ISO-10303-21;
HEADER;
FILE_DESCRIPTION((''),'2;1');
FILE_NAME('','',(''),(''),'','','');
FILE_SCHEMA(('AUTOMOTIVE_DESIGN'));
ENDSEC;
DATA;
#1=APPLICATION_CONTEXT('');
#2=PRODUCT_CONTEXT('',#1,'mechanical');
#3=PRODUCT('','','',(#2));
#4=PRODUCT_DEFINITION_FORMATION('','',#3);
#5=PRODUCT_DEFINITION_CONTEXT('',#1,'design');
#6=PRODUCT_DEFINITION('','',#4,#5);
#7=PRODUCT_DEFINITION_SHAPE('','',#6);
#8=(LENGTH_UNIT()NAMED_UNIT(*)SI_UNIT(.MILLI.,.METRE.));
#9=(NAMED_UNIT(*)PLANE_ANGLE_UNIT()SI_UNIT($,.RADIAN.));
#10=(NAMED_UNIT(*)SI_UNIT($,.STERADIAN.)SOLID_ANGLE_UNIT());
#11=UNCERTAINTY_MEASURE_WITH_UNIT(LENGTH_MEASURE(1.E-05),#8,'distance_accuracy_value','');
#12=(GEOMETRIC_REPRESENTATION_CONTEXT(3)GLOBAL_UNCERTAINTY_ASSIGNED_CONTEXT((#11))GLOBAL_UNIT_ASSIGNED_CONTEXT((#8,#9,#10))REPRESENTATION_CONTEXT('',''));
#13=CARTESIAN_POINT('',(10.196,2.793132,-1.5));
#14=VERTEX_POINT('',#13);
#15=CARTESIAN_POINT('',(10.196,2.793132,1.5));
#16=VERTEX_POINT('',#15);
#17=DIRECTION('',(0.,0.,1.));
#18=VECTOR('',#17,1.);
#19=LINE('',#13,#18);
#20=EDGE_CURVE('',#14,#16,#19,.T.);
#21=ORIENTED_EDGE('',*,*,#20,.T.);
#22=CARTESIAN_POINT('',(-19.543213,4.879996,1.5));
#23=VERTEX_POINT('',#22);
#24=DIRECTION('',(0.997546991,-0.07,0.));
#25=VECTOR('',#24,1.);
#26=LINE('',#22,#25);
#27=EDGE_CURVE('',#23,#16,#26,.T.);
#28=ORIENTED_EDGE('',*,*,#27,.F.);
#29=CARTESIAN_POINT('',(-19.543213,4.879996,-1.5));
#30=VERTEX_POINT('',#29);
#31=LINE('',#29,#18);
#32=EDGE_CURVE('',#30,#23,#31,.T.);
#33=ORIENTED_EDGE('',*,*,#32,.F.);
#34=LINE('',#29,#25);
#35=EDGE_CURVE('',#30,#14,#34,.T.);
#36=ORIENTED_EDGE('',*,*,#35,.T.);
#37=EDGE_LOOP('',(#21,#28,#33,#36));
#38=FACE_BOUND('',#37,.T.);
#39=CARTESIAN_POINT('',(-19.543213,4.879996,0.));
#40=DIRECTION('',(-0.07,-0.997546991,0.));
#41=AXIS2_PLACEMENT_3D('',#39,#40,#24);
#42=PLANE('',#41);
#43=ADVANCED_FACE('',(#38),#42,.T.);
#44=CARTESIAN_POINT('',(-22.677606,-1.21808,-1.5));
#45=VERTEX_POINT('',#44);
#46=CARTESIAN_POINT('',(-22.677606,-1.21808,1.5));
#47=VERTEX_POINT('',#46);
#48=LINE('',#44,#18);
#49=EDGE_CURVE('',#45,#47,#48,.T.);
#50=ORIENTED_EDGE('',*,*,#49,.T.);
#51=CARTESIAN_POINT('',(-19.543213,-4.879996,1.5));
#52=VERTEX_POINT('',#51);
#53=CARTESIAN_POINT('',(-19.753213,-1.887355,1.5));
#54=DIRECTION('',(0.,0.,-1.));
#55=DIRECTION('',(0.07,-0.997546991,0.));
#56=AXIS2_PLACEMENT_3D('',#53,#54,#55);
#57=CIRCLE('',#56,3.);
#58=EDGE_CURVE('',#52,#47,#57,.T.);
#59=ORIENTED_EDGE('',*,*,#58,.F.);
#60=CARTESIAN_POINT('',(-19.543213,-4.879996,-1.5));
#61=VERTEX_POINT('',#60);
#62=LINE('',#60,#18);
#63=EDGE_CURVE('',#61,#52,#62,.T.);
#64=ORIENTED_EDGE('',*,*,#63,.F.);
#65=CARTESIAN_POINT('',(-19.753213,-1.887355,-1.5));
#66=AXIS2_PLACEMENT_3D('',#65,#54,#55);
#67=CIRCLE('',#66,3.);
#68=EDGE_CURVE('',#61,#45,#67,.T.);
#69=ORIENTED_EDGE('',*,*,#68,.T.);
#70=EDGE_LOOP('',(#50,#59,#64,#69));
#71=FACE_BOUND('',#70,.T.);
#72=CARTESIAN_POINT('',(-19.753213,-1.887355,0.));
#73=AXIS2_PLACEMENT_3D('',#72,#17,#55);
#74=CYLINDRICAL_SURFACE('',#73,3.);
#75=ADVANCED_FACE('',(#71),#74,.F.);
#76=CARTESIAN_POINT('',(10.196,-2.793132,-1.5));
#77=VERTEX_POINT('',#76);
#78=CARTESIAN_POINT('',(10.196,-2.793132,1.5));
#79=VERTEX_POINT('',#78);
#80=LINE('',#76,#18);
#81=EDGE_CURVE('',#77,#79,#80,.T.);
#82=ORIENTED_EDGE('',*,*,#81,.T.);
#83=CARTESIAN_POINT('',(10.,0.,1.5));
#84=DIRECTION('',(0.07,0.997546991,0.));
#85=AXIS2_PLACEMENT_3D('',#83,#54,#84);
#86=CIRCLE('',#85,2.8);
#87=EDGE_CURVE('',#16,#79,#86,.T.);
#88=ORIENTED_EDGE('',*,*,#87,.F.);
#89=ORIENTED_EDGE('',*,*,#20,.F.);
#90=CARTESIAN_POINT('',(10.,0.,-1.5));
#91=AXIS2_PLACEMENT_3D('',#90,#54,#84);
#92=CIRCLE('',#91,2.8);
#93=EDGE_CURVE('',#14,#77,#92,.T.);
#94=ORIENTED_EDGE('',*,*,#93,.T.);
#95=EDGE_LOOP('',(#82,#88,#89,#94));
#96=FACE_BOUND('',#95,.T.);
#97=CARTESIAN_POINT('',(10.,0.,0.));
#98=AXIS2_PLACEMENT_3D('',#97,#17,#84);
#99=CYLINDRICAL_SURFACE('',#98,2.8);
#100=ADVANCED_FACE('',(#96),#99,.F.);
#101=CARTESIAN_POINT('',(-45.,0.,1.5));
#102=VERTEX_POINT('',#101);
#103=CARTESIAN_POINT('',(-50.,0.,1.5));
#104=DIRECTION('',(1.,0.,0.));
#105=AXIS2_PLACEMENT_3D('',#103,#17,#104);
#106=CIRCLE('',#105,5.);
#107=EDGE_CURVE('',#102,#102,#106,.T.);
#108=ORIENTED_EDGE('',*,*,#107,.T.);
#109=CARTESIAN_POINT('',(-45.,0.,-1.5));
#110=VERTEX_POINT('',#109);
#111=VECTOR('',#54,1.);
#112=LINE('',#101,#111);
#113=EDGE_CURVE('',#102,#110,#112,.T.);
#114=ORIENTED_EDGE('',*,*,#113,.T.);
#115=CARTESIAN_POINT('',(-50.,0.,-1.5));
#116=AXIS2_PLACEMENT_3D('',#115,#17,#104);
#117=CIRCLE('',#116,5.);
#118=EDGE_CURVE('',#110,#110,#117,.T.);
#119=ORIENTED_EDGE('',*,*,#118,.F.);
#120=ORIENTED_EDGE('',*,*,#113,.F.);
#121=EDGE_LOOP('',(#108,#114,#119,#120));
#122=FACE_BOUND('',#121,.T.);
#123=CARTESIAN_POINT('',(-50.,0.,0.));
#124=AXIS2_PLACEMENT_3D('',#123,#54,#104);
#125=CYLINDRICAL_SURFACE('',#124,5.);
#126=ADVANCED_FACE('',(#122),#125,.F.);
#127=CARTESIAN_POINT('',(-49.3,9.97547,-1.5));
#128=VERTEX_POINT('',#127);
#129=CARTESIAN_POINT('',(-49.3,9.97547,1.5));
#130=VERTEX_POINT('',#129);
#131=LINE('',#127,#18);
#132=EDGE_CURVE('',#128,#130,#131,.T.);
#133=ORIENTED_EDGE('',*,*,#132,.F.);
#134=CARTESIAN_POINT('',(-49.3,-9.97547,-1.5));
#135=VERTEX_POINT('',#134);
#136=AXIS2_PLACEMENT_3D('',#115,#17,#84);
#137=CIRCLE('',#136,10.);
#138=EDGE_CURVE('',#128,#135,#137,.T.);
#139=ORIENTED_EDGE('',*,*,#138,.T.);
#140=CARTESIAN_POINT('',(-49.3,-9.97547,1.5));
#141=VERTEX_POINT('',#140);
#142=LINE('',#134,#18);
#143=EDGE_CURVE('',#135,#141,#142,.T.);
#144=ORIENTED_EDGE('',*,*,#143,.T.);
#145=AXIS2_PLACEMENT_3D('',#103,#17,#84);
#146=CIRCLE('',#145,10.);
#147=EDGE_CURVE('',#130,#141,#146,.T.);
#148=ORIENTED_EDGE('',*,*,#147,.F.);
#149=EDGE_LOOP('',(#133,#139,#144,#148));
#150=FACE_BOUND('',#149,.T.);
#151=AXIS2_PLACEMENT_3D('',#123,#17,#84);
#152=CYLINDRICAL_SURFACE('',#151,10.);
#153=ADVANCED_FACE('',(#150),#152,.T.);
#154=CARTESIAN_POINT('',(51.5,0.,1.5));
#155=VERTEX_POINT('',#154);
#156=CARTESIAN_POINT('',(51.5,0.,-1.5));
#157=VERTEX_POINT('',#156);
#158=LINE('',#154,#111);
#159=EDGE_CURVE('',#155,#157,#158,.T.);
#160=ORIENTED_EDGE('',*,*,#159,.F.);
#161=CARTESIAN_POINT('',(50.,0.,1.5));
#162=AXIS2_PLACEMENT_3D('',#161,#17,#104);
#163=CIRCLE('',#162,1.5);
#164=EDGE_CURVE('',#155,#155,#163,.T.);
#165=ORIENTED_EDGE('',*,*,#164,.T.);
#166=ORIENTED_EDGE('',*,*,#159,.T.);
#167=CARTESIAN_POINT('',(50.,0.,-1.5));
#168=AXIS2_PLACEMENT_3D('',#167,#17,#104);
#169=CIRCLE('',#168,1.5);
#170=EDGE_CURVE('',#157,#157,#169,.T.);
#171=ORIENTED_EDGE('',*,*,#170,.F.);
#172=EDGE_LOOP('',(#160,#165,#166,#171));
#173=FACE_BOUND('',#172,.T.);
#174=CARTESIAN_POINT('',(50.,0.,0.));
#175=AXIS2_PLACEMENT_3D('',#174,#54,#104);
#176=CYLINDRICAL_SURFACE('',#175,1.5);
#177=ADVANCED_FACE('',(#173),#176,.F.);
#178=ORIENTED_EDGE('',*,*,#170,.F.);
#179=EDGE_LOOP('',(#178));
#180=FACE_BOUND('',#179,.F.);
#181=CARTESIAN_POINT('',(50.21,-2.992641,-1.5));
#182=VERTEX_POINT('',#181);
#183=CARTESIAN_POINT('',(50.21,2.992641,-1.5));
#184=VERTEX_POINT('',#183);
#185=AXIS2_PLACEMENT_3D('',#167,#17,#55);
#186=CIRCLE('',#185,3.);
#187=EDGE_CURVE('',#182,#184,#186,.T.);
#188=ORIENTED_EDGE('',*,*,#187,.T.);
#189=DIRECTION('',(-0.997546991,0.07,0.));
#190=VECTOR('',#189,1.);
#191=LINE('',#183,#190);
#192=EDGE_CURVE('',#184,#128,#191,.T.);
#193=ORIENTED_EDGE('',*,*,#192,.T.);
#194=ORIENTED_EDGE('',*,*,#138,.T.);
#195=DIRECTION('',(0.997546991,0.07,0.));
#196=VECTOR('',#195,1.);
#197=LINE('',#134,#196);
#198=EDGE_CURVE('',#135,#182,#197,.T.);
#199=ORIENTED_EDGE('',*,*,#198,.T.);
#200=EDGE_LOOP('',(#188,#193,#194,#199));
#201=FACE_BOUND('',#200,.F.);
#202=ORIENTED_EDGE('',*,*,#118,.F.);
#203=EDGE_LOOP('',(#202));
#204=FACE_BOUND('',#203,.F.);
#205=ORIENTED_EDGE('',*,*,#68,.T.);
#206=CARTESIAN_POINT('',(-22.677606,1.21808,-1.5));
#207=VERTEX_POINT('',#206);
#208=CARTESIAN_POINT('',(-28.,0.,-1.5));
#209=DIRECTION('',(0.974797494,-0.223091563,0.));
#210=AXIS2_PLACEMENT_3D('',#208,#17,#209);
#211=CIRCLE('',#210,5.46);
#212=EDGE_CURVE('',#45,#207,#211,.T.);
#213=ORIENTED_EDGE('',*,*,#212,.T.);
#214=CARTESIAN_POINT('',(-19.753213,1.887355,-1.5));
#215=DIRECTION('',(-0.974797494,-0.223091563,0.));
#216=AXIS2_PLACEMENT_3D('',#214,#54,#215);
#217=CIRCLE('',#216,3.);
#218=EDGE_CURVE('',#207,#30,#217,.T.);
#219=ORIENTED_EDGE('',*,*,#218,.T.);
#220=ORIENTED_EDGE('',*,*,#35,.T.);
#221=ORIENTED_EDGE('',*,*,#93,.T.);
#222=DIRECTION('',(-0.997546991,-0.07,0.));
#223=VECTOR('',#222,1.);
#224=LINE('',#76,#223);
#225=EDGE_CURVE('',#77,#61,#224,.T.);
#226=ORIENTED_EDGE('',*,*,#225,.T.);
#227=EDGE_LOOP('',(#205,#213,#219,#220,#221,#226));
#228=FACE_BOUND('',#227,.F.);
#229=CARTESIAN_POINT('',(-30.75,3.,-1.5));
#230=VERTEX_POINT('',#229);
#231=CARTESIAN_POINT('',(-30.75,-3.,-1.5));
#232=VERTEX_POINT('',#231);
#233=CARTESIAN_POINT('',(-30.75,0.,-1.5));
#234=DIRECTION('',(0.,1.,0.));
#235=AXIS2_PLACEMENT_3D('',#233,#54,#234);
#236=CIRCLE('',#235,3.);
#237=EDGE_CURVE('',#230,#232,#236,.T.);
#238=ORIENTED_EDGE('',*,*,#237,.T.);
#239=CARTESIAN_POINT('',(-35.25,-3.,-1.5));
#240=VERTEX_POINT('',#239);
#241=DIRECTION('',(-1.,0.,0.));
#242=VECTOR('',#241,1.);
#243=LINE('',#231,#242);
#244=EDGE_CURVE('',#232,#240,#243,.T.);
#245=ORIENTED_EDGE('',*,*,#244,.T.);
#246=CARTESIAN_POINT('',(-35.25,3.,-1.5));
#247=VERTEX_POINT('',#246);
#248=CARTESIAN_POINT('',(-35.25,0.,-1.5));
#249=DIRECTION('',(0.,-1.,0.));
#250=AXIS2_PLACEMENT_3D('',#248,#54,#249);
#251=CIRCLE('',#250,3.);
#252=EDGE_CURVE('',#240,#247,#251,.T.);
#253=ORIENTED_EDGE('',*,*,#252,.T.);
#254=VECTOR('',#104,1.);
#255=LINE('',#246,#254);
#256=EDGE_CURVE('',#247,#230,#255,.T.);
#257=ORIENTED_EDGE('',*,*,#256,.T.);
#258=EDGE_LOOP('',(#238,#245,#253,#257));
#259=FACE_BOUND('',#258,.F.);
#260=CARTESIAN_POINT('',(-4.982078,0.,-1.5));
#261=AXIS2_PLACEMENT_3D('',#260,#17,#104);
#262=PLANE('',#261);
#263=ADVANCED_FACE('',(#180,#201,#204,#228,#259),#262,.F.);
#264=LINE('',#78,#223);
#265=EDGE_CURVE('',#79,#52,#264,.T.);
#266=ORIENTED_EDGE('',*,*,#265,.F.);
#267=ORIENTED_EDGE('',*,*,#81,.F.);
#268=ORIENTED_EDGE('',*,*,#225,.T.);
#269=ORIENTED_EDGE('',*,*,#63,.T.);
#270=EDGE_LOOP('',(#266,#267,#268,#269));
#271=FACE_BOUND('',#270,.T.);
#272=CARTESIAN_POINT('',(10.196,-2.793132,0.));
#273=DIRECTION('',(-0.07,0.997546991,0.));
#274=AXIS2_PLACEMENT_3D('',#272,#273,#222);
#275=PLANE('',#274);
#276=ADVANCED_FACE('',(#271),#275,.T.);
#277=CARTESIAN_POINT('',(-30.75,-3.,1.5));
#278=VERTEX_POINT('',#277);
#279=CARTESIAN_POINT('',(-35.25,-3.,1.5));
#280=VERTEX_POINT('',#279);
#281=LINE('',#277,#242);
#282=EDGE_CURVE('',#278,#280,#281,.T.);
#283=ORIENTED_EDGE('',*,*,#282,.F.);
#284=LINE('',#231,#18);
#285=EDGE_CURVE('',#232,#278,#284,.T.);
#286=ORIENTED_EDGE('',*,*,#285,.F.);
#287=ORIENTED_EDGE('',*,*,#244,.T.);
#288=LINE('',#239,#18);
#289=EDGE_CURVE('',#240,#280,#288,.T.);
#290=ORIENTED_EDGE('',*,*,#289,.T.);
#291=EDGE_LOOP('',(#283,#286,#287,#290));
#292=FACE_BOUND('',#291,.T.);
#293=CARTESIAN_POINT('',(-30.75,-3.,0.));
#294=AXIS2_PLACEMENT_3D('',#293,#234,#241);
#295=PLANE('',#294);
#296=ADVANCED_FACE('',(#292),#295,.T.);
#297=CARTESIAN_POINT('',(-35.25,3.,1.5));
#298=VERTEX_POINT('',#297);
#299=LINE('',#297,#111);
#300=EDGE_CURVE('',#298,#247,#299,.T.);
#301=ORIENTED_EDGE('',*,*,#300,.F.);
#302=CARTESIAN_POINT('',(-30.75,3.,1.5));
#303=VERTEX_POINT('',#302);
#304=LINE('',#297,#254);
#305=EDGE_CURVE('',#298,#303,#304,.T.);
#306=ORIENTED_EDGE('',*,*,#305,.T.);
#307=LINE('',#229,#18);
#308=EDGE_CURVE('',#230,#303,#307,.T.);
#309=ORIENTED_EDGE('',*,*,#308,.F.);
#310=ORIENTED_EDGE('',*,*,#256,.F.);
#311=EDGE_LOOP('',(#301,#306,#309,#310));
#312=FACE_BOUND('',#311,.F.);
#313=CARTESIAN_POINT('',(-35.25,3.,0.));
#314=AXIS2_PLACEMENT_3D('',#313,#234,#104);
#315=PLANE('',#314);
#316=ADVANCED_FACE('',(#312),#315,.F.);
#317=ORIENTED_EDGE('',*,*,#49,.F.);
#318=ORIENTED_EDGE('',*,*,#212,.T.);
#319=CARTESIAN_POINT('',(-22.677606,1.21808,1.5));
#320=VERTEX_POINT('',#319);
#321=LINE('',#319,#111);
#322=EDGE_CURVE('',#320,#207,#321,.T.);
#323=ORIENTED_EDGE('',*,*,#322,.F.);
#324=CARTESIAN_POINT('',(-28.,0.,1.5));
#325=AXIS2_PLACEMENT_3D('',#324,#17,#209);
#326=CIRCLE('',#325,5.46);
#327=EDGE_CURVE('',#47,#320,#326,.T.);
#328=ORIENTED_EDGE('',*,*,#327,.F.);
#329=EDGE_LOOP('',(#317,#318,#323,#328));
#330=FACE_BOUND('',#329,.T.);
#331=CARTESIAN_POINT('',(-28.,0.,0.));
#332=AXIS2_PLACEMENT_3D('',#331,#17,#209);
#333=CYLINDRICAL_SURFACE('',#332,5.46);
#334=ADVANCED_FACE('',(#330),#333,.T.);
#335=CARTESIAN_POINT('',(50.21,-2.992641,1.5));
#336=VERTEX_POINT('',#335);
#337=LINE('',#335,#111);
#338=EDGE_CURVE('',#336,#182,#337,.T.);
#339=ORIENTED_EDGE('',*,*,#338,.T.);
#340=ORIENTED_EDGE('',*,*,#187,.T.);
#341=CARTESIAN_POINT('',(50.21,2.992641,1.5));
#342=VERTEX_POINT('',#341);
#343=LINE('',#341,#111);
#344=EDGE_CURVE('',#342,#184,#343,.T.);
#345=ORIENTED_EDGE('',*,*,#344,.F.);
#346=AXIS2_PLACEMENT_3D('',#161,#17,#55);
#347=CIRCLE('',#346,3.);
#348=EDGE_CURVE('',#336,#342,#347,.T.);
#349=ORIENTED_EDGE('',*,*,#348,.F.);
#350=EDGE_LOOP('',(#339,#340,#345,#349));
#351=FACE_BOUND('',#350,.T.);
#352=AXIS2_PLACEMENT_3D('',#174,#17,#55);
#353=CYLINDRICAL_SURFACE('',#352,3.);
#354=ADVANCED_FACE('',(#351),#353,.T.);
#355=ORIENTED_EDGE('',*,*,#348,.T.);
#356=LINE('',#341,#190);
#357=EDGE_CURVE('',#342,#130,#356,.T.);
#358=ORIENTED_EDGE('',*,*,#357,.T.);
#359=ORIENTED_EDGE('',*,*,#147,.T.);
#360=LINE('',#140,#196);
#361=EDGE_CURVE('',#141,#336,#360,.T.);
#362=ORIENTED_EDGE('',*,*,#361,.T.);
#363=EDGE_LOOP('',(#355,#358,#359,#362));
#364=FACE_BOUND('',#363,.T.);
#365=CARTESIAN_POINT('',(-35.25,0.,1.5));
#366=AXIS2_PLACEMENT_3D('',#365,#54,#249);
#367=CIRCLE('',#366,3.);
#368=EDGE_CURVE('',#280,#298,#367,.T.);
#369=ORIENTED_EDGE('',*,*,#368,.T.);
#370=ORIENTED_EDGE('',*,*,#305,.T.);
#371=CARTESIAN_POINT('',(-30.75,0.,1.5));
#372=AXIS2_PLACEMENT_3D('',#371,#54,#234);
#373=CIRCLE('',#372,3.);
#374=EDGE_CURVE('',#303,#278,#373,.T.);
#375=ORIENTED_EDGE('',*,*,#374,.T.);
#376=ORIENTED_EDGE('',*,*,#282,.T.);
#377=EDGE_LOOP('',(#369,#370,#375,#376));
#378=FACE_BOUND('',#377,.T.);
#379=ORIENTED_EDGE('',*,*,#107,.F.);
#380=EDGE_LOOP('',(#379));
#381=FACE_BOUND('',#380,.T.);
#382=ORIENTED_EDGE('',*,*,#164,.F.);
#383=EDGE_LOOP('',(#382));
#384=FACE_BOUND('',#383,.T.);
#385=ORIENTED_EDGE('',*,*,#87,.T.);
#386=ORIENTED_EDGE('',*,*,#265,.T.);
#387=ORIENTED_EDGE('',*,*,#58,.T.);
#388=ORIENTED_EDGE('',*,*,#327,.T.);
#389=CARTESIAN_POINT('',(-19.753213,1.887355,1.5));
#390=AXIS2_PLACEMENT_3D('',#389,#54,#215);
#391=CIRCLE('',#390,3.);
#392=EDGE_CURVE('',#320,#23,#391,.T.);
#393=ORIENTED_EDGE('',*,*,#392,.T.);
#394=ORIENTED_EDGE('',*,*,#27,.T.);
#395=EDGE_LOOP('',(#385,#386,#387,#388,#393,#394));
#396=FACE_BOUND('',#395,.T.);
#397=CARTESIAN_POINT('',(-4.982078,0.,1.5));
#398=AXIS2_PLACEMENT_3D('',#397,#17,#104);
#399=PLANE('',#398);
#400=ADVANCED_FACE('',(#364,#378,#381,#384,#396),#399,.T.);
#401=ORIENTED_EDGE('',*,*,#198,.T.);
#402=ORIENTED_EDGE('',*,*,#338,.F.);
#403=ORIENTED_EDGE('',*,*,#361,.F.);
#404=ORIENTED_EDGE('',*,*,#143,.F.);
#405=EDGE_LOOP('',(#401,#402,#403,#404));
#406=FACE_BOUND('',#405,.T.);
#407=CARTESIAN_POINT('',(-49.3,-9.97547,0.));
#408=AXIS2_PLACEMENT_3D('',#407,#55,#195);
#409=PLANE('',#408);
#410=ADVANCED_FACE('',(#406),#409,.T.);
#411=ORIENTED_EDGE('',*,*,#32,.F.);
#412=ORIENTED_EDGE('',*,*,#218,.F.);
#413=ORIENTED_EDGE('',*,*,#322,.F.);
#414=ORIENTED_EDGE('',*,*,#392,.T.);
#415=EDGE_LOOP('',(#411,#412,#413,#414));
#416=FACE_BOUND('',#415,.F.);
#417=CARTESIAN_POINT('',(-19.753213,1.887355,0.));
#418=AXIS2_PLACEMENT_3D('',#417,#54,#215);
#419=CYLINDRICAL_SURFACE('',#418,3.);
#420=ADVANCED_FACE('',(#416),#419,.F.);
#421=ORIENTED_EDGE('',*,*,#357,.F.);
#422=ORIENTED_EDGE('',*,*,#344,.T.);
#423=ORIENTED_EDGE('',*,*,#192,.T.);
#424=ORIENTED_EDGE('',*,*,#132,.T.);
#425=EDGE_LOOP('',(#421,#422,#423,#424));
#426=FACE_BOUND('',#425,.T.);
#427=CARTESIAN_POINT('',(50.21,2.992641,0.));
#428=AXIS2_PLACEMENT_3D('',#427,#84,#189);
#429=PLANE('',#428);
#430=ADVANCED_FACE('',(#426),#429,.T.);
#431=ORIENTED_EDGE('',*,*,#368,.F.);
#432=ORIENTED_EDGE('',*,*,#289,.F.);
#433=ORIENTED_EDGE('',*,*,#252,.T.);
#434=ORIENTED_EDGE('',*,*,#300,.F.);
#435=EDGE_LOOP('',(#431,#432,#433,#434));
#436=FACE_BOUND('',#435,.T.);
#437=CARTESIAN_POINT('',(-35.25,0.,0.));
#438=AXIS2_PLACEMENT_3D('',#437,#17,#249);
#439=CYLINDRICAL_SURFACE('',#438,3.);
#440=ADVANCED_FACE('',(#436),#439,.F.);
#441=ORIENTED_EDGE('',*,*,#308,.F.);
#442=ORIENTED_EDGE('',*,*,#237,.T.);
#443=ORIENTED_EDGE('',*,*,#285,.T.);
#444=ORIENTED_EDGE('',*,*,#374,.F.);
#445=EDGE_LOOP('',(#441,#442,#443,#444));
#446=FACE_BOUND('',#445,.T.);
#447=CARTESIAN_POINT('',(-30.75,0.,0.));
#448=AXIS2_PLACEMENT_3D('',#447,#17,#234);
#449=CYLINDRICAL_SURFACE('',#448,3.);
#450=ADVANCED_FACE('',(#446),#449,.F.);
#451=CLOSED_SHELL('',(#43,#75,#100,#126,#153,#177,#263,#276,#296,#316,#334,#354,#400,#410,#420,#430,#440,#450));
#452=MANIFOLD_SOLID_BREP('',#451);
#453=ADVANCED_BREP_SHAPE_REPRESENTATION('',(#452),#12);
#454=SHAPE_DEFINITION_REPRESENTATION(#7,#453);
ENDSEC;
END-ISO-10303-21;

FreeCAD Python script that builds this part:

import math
import FreeCAD as App
import Part
import Sketcher

V = App.Vector
Q = App.Units.Quantity

doc = App.newDocument("Part")
params = doc.addObject("Spreadsheet::Sheet", "Params")
for row, (alias, value) in enumerate([
    ("sketch1_diameter", "10 mm"),
    ("sketch1_diameter2", "3 mm"),
    ("sketch1_radius", "10 mm"),
    ("sketch1_radius2", "3 mm"),
    ("sketch1_radius3", "2.8 mm"),
    ("pad1_length", "3 mm"),
], start=1):
    params.set(f"A{row}", alias)
    params.set(f"B{row}", "=" + value)
    params.setAlias(f"B{row}", alias)

body = doc.addObject("PartDesign::Body", "Body")

# Sketch on XY plane
sketch1 = body.newObject("Sketcher::SketchObject", "Sketch")
sketch1.AttachmentSupport = (doc.getObject("XY_Plane"), [""])
sketch1.MapMode = "FlatFace"
sketch1.addGeometry([
    Part.LineSegment(V(50.21, 2.992641, 0), V(-49.3, 9.97547, 0)),  # 0
    Part.ArcOfCircle(Part.Circle(V(-50, 0, 0), V(0, 0, 1), 10), math.radians(85.986013), math.radians(274.013987)),  # 1
    Part.LineSegment(V(-49.3, -9.97547, 0), V(50.21, -2.992641, 0)),  # 2
    Part.ArcOfCircle(Part.Circle(V(50, 0, 0), V(0, 0, 1), 3), math.radians(-85.986013), math.radians(85.986013)),  # 3
    Part.Circle(V(-50, 0, 0), V(0, 0, 1), 5),  # 4
    Part.LineSegment(V(-30.75, -3, 0), V(-35.25, -3, 0)),  # 5
    Part.ArcOfCircle(Part.Circle(V(-35.25, 0, 0), V(0, 0, 1), 3), math.radians(90), math.radians(270)),  # 6
    Part.LineSegment(V(-35.25, 3, 0), V(-30.75, 3, 0)),  # 7
    Part.ArcOfCircle(Part.Circle(V(-30.75, 0, 0), V(0, 0, 1), 3), math.radians(-90), math.radians(90)),  # 8
    Part.LineSegment(V(10.196, -2.793132, 0), V(-19.543213, -4.879996, 0)),  # 9
    Part.ArcOfCircle(Part.Circle(V(-19.753213, -1.887355, 0), V(0, 0, 1), 3), math.radians(167.109319), math.radians(274.013987)),  # 10
    Part.ArcOfCircle(Part.Circle(V(-28, 0, 0), V(0, 0, 1), 5.46), math.radians(-12.890681), math.radians(12.890681)),  # 11
    Part.ArcOfCircle(Part.Circle(V(-19.753213, 1.887355, 0), V(0, 0, 1), 3), math.radians(85.986013), math.radians(192.890681)),  # 12
    Part.LineSegment(V(-19.543213, 4.879996, 0), V(10.196, 2.793132, 0)),  # 13
    Part.ArcOfCircle(Part.Circle(V(10, 0, 0), V(0, 0, 1), 2.8), math.radians(-85.986013), math.radians(85.986013)),  # 14
    Part.Circle(V(50, 0, 0), V(0, 0, 1), 1.5),  # 15
], False)
sketch1.addConstraint([
    Sketcher.Constraint("Tangent", 0, 2, 1, 1),
    Sketcher.Constraint("Tangent", 1, 2, 2, 1),
    Sketcher.Constraint("Tangent", 2, 2, 3, 1),
    Sketcher.Constraint("Tangent", 3, 2, 0, 1),
    Sketcher.Constraint("Tangent", 5, 2, 6, 2),
    Sketcher.Constraint("Tangent", 6, 1, 7, 1),
    Sketcher.Constraint("Tangent", 7, 2, 8, 2),
    Sketcher.Constraint("Tangent", 8, 1, 5, 1),
    Sketcher.Constraint("Tangent", 9, 2, 10, 2),
    Sketcher.Constraint("Tangent", 10, 1, 11, 1),
    Sketcher.Constraint("Tangent", 11, 2, 12, 2),
    Sketcher.Constraint("Tangent", 12, 1, 13, 1),
    Sketcher.Constraint("Tangent", 13, 2, 14, 2),
    Sketcher.Constraint("Tangent", 14, 1, 9, 1),
    Sketcher.Constraint("Horizontal", 5),
    Sketcher.Constraint("Horizontal", 7),
    Sketcher.Constraint("Coincident", 4, 3, 1, 3),
    Sketcher.Constraint("Coincident", 15, 3, 3, 3),
    Sketcher.Constraint("Equal", 3, 6),
    Sketcher.Constraint("Equal", 8, 10),
    Sketcher.Constraint("Equal", 10, 12),
    Sketcher.Constraint("Symmetric", 1, 3, 3, 3, -1, 1),
    Sketcher.Constraint("Symmetric", 10, 3, 12, 3, -1),
    Sketcher.Constraint("PointOnObject", 1, 3, -1),
    Sketcher.Constraint("PointOnObject", 6, 3, -1),
    Sketcher.Constraint("PointOnObject", 14, 3, -1),
    Sketcher.Constraint("Parallel", 2, 9),
    Sketcher.Constraint("Diameter", 4, Q("10 mm")),
    Sketcher.Constraint("Diameter", 15, Q("3 mm")),
    Sketcher.Constraint("Radius", 1, Q("10 mm")),
    Sketcher.Constraint("Radius", 3, Q("3 mm")),
    Sketcher.Constraint("Radius", 14, Q("2.8 mm")),
    Sketcher.Constraint("Radius", 11, Q("5.46 mm")),
    Sketcher.Constraint("DistanceX", 5, 2, 5, 1, Q("4.5 mm")),
    Sketcher.Constraint("DistanceX", 1, 3, -1, 1, Q("50 mm")),
    Sketcher.Constraint("DistanceX", 11, 3, -1, 1, Q("28 mm")),
    Sketcher.Constraint("DistanceX", -1, 1, 14, 3, Q("10 mm")),
    Sketcher.Constraint("DistanceX", 6, 3, -1, 1, Q("35.25 mm")),
])
sketch1.setExpression("Constraints[27]", "Params.sketch1_diameter")
sketch1.setExpression("Constraints[28]", "Params.sketch1_diameter2")
sketch1.setExpression("Constraints[29]", "Params.sketch1_radius")
sketch1.setExpression("Constraints[30]", "Params.sketch1_radius2")
sketch1.setExpression("Constraints[31]", "Params.sketch1_radius3")
pad1 = body.newObject("PartDesign::Pad", "Pad")
pad1.Profile = sketch1
pad1.setExpression("Length", "Params.pad1_length")
pad1.Midplane = True

doc.recompute()
